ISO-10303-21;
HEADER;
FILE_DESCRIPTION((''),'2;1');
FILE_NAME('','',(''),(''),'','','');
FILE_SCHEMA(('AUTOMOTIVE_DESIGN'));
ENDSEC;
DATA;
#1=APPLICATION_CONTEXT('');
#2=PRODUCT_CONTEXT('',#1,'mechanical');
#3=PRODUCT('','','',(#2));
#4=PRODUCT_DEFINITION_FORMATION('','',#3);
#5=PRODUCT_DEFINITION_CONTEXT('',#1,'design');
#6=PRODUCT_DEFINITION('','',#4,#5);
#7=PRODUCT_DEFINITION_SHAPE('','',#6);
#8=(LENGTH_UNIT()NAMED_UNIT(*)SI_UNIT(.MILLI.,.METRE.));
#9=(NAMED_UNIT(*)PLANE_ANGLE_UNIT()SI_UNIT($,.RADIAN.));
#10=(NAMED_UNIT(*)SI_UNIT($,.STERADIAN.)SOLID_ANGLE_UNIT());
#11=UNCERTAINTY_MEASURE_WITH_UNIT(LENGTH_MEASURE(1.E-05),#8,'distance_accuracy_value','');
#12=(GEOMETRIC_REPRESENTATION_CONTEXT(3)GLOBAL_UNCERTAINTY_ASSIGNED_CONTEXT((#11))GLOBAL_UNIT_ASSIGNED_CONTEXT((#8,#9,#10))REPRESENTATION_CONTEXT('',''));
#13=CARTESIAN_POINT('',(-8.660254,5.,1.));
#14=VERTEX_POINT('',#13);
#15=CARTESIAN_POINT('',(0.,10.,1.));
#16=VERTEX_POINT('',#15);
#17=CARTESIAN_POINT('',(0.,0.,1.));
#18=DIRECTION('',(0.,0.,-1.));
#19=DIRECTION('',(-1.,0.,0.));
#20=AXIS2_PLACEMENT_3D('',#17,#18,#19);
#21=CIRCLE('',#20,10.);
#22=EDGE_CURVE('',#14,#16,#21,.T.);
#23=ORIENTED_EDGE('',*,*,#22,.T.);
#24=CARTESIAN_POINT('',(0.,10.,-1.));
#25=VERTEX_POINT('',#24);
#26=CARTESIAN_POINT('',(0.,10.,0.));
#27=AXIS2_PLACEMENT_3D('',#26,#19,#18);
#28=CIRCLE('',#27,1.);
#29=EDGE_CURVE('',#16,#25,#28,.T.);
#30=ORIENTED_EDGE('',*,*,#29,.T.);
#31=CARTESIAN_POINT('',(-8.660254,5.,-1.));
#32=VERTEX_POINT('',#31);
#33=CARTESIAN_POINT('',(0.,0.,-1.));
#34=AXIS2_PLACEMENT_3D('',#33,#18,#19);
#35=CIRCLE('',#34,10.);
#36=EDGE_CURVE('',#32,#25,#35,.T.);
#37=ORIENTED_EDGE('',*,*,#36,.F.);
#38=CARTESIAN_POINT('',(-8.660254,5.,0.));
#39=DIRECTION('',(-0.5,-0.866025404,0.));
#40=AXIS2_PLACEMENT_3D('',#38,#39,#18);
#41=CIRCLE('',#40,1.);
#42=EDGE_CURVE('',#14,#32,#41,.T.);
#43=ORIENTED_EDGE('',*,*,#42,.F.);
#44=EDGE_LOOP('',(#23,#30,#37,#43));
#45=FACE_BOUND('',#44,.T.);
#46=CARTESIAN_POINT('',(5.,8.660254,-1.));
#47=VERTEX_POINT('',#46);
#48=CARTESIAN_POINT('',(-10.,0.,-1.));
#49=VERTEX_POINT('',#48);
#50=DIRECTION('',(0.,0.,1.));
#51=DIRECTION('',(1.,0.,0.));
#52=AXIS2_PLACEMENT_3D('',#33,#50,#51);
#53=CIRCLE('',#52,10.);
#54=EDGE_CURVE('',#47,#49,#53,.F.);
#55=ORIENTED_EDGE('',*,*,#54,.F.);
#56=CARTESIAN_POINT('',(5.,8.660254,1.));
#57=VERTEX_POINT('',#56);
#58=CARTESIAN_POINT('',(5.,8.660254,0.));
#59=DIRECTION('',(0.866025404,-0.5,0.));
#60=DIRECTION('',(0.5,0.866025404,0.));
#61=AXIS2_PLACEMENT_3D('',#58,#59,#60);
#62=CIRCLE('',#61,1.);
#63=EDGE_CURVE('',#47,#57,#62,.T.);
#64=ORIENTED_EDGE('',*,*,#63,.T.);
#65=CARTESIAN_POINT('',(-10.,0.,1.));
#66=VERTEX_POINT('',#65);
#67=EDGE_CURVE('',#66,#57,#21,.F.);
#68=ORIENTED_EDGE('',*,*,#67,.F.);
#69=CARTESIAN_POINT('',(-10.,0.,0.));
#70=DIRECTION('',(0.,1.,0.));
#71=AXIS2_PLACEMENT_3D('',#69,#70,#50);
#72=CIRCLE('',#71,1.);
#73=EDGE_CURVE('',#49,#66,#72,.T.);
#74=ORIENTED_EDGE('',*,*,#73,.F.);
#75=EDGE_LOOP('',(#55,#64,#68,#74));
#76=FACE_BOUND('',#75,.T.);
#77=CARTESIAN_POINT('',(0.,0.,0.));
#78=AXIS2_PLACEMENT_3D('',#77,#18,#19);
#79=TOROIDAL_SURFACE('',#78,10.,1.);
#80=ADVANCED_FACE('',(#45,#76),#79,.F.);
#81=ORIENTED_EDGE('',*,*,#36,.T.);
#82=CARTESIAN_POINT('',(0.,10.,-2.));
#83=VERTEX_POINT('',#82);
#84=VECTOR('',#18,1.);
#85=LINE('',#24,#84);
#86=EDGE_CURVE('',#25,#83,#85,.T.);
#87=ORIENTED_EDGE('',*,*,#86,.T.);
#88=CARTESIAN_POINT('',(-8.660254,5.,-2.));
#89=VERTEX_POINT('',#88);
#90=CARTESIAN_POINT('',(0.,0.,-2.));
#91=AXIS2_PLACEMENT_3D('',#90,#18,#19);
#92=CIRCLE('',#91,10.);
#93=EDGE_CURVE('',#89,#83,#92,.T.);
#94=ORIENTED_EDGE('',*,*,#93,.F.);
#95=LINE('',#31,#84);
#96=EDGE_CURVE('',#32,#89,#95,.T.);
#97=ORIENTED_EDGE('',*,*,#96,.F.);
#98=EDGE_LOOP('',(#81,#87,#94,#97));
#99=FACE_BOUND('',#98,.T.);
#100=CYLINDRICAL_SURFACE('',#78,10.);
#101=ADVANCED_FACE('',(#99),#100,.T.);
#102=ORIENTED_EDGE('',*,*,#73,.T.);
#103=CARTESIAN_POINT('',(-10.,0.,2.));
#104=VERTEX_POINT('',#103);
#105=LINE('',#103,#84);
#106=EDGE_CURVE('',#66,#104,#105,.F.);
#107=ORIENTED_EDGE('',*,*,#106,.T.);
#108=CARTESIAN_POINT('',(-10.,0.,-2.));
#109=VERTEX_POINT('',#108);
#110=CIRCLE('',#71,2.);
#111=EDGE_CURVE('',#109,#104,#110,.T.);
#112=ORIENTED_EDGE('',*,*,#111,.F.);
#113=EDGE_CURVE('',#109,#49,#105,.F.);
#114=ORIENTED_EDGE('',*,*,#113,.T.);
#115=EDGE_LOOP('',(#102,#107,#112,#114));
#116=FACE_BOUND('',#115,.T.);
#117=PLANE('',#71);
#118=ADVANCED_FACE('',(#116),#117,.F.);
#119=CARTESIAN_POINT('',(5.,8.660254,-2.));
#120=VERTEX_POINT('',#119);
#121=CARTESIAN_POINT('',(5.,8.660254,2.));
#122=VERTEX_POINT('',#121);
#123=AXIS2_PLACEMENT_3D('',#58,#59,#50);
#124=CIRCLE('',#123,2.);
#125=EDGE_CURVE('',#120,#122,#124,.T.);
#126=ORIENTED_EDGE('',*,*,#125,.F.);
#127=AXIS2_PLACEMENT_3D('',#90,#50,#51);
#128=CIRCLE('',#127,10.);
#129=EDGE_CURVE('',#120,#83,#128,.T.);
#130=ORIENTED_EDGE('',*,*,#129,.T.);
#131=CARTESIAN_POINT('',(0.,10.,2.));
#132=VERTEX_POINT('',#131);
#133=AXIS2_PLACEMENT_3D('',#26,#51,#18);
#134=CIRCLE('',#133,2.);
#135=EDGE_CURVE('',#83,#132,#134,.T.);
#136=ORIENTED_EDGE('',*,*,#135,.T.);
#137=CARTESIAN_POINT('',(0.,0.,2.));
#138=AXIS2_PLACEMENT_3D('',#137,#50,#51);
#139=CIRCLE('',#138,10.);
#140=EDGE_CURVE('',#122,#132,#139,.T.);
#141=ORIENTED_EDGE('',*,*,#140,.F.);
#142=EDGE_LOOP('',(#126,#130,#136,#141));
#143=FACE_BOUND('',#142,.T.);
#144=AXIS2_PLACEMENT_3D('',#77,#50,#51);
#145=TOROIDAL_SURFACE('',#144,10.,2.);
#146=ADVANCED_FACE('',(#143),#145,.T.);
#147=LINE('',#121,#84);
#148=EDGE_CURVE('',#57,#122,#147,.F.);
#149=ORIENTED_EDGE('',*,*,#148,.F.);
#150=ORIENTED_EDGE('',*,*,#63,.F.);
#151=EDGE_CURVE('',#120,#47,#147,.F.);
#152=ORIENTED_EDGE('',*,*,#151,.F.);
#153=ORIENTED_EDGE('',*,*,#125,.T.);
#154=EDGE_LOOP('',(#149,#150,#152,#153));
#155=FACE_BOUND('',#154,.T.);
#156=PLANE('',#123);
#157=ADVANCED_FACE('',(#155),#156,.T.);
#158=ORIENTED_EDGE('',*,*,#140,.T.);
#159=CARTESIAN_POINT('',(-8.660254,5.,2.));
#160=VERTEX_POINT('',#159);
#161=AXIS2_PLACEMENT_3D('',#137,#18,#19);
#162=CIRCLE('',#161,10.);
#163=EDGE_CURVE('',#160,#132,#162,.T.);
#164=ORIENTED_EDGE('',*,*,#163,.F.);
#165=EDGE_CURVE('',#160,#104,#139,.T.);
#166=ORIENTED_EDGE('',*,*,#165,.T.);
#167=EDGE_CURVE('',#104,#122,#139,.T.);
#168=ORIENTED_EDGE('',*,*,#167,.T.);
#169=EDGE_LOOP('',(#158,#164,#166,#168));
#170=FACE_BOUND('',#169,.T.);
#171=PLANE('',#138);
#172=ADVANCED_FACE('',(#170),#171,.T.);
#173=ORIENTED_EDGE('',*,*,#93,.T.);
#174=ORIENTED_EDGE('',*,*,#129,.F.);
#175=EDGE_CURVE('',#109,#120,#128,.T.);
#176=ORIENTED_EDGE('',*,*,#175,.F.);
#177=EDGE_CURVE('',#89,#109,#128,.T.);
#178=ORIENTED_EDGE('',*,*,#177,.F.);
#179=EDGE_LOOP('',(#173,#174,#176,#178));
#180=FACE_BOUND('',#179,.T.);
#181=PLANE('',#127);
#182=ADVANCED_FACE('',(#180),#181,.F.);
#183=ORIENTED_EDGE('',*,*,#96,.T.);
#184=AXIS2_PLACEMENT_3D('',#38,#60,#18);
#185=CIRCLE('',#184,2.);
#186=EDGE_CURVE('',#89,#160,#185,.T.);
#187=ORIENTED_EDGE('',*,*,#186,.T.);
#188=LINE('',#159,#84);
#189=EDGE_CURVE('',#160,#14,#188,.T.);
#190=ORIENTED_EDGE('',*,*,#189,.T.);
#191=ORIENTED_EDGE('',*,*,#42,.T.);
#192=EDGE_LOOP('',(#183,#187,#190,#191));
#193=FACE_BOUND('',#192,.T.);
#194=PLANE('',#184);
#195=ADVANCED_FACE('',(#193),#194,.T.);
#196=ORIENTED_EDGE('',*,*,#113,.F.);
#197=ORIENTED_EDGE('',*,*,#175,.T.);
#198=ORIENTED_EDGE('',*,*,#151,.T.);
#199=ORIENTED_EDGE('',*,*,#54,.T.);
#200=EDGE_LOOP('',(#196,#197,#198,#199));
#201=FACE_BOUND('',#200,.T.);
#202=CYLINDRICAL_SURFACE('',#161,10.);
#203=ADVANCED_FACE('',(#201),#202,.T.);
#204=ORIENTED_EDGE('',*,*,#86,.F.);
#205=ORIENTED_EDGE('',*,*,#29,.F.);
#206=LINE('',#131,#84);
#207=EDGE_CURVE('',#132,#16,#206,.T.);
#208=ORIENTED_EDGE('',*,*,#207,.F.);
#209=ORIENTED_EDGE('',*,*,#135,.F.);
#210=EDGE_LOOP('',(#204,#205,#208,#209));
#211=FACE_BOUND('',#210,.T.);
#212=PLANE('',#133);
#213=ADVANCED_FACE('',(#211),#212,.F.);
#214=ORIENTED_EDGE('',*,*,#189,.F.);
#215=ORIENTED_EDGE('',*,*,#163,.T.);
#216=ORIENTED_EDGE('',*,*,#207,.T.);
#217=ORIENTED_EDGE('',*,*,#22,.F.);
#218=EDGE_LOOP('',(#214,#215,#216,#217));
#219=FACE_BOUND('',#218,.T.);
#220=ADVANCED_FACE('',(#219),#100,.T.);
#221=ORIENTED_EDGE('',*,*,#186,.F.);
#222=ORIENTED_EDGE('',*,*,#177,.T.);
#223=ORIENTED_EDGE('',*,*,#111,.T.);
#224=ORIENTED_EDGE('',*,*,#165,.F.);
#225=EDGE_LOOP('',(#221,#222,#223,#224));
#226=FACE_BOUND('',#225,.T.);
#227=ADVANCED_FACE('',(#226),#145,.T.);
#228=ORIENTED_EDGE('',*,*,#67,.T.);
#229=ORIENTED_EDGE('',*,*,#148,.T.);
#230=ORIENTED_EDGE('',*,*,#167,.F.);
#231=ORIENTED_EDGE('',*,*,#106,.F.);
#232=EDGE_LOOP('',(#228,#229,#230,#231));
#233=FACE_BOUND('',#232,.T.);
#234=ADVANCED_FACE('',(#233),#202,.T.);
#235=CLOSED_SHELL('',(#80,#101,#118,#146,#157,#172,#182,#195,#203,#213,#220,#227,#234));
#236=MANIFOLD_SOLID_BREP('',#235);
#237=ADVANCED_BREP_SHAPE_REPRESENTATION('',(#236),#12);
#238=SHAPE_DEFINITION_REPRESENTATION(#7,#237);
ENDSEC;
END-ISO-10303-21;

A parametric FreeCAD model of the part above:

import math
import FreeCAD as App
import Part
import Sketcher

doc = App.newDocument("Part")
body = doc.addObject("PartDesign::Body", "Body")

# Sketch on XY plane
sketch1 = body.newObject("Sketcher::SketchObject", "Sketch")
sketch1.AttachmentSupport = (doc.getObject("XY_Plane"), [""])
sketch1.MapMode = "FlatFace"
sketch1.addGeometry(Part.Circle(App.Vector(0, 0, 0), App.Vector(0, 0, 1), 10), False)
sketch1.addConstraint([
    Sketcher.Constraint("Coincident", 0, 3, -1, 1),
    Sketcher.Constraint("Diameter", 0, 20.0),
])
pad1 = body.newObject("PartDesign::Pad", "Pad")
pad1.Profile = sketch1
pad1.Length = 4
pad1.Midplane = True

# Sketch on XZ plane
sketch2 = body.newObject("Sketcher::SketchObject", "Sketch001")
sketch2.AttachmentSupport = (doc.getObject("XZ_Plane"), [""])
sketch2.MapMode = "FlatFace"
sketch2.addGeometry(Part.Circle(App.Vector(-10, 0, 0), App.Vector(0, 0, 1), 2), False)
sketch2.addConstraint([
    Sketcher.Constraint("PointOnObject", 0, 3, -1),
    Sketcher.Constraint("Diameter", 0, 4.0),
    Sketcher.Constraint("DistanceX", 0, 3, -1, 1, 10.0),
])
revolution = body.newObject("PartDesign::Revolution", "Revolution")
revolution.Profile = sketch2
revolution.ReferenceAxis = (sketch2, ["V_Axis"])
revolution.Angle = 120
revolution.Reversed = True

# Sketch on YZ plane
sketch3 = body.newObject("Sketcher::SketchObject", "Sketch002")
sketch3.AttachmentSupport = (doc.getObject("YZ_Plane"), [""])
sketch3.MapMode = "FlatFace"
sketch3.addGeometry(Part.Circle(App.Vector(10, 0, 0), App.Vector(0, 0, 1), 1), False)
sketch3.addConstraint([
    Sketcher.Constraint("PointOnObject", 0, 3, -1),
    Sketcher.Constraint("Diameter", 0, 2.0),
    Sketcher.Constraint("DistanceX", -1, 1, 0, 3, 10.0),
])
groove = body.newObject("PartDesign::Groove", "Groove")
groove.Profile = sketch3
groove.ReferenceAxis = (sketch3, ["V_Axis"])
groove.Angle = 360

# Sketch on YZ plane
sketch4 = body.newObject("Sketcher::SketchObject", "Sketch003")
sketch4.AttachmentSupport = (doc.getObject("YZ_Plane"), [""])
sketch4.MapMode = "FlatFace"
sketch4.addGeometry([
    Part.LineSegment(App.Vector(10, 2, 0), App.Vector(10, 1, 0)),
    Part.ArcOfCircle(Part.Circle(App.Vector(10, 0, 0), App.Vector(0, 0, 1), 1), math.radians(-90), math.radians(90)),
    Part.LineSegment(App.Vector(10, -1, 0), App.Vector(10, -2, 0)),
    Part.ArcOfCircle(Part.Circle(App.Vector(10, 0, 0), App.Vector(0, 0, 1), 2), math.radians(-90), math.radians(90)),
], False)
sketch4.addConstraint([
    Sketcher.Constraint("Coincident", 0, 2, 1, 2),
    Sketcher.Constraint("Coincident", 1, 1, 2, 1),
    Sketcher.Constraint("Coincident", 2, 2, 3, 1),
    Sketcher.Constraint("Coincident", 3, 2, 0, 1),
    Sketcher.Constraint("Vertical", 0),
    Sketcher.Constraint("Vertical", 2),
    Sketcher.Constraint("Coincident", 3, 3, 1, 3),
    Sketcher.Constraint("Symmetric", 0, 2, 1, 1, -1),
    Sketcher.Constraint("Vertical", 3, 3, 0, 2),
    Sketcher.Constraint("Radius", 1, 1.0),
    Sketcher.Constraint("Radius", 3, 2.0),
    Sketcher.Constraint("DistanceX", -1, 1, 1, 3, 10.0),
])
groove2 = body.newObject("PartDesign::Groove", "Groove001")
groove2.Profile = sketch4
groove2.ReferenceAxis = (sketch4, ["V_Axis"])
groove2.Angle = 60

doc.recompute()
